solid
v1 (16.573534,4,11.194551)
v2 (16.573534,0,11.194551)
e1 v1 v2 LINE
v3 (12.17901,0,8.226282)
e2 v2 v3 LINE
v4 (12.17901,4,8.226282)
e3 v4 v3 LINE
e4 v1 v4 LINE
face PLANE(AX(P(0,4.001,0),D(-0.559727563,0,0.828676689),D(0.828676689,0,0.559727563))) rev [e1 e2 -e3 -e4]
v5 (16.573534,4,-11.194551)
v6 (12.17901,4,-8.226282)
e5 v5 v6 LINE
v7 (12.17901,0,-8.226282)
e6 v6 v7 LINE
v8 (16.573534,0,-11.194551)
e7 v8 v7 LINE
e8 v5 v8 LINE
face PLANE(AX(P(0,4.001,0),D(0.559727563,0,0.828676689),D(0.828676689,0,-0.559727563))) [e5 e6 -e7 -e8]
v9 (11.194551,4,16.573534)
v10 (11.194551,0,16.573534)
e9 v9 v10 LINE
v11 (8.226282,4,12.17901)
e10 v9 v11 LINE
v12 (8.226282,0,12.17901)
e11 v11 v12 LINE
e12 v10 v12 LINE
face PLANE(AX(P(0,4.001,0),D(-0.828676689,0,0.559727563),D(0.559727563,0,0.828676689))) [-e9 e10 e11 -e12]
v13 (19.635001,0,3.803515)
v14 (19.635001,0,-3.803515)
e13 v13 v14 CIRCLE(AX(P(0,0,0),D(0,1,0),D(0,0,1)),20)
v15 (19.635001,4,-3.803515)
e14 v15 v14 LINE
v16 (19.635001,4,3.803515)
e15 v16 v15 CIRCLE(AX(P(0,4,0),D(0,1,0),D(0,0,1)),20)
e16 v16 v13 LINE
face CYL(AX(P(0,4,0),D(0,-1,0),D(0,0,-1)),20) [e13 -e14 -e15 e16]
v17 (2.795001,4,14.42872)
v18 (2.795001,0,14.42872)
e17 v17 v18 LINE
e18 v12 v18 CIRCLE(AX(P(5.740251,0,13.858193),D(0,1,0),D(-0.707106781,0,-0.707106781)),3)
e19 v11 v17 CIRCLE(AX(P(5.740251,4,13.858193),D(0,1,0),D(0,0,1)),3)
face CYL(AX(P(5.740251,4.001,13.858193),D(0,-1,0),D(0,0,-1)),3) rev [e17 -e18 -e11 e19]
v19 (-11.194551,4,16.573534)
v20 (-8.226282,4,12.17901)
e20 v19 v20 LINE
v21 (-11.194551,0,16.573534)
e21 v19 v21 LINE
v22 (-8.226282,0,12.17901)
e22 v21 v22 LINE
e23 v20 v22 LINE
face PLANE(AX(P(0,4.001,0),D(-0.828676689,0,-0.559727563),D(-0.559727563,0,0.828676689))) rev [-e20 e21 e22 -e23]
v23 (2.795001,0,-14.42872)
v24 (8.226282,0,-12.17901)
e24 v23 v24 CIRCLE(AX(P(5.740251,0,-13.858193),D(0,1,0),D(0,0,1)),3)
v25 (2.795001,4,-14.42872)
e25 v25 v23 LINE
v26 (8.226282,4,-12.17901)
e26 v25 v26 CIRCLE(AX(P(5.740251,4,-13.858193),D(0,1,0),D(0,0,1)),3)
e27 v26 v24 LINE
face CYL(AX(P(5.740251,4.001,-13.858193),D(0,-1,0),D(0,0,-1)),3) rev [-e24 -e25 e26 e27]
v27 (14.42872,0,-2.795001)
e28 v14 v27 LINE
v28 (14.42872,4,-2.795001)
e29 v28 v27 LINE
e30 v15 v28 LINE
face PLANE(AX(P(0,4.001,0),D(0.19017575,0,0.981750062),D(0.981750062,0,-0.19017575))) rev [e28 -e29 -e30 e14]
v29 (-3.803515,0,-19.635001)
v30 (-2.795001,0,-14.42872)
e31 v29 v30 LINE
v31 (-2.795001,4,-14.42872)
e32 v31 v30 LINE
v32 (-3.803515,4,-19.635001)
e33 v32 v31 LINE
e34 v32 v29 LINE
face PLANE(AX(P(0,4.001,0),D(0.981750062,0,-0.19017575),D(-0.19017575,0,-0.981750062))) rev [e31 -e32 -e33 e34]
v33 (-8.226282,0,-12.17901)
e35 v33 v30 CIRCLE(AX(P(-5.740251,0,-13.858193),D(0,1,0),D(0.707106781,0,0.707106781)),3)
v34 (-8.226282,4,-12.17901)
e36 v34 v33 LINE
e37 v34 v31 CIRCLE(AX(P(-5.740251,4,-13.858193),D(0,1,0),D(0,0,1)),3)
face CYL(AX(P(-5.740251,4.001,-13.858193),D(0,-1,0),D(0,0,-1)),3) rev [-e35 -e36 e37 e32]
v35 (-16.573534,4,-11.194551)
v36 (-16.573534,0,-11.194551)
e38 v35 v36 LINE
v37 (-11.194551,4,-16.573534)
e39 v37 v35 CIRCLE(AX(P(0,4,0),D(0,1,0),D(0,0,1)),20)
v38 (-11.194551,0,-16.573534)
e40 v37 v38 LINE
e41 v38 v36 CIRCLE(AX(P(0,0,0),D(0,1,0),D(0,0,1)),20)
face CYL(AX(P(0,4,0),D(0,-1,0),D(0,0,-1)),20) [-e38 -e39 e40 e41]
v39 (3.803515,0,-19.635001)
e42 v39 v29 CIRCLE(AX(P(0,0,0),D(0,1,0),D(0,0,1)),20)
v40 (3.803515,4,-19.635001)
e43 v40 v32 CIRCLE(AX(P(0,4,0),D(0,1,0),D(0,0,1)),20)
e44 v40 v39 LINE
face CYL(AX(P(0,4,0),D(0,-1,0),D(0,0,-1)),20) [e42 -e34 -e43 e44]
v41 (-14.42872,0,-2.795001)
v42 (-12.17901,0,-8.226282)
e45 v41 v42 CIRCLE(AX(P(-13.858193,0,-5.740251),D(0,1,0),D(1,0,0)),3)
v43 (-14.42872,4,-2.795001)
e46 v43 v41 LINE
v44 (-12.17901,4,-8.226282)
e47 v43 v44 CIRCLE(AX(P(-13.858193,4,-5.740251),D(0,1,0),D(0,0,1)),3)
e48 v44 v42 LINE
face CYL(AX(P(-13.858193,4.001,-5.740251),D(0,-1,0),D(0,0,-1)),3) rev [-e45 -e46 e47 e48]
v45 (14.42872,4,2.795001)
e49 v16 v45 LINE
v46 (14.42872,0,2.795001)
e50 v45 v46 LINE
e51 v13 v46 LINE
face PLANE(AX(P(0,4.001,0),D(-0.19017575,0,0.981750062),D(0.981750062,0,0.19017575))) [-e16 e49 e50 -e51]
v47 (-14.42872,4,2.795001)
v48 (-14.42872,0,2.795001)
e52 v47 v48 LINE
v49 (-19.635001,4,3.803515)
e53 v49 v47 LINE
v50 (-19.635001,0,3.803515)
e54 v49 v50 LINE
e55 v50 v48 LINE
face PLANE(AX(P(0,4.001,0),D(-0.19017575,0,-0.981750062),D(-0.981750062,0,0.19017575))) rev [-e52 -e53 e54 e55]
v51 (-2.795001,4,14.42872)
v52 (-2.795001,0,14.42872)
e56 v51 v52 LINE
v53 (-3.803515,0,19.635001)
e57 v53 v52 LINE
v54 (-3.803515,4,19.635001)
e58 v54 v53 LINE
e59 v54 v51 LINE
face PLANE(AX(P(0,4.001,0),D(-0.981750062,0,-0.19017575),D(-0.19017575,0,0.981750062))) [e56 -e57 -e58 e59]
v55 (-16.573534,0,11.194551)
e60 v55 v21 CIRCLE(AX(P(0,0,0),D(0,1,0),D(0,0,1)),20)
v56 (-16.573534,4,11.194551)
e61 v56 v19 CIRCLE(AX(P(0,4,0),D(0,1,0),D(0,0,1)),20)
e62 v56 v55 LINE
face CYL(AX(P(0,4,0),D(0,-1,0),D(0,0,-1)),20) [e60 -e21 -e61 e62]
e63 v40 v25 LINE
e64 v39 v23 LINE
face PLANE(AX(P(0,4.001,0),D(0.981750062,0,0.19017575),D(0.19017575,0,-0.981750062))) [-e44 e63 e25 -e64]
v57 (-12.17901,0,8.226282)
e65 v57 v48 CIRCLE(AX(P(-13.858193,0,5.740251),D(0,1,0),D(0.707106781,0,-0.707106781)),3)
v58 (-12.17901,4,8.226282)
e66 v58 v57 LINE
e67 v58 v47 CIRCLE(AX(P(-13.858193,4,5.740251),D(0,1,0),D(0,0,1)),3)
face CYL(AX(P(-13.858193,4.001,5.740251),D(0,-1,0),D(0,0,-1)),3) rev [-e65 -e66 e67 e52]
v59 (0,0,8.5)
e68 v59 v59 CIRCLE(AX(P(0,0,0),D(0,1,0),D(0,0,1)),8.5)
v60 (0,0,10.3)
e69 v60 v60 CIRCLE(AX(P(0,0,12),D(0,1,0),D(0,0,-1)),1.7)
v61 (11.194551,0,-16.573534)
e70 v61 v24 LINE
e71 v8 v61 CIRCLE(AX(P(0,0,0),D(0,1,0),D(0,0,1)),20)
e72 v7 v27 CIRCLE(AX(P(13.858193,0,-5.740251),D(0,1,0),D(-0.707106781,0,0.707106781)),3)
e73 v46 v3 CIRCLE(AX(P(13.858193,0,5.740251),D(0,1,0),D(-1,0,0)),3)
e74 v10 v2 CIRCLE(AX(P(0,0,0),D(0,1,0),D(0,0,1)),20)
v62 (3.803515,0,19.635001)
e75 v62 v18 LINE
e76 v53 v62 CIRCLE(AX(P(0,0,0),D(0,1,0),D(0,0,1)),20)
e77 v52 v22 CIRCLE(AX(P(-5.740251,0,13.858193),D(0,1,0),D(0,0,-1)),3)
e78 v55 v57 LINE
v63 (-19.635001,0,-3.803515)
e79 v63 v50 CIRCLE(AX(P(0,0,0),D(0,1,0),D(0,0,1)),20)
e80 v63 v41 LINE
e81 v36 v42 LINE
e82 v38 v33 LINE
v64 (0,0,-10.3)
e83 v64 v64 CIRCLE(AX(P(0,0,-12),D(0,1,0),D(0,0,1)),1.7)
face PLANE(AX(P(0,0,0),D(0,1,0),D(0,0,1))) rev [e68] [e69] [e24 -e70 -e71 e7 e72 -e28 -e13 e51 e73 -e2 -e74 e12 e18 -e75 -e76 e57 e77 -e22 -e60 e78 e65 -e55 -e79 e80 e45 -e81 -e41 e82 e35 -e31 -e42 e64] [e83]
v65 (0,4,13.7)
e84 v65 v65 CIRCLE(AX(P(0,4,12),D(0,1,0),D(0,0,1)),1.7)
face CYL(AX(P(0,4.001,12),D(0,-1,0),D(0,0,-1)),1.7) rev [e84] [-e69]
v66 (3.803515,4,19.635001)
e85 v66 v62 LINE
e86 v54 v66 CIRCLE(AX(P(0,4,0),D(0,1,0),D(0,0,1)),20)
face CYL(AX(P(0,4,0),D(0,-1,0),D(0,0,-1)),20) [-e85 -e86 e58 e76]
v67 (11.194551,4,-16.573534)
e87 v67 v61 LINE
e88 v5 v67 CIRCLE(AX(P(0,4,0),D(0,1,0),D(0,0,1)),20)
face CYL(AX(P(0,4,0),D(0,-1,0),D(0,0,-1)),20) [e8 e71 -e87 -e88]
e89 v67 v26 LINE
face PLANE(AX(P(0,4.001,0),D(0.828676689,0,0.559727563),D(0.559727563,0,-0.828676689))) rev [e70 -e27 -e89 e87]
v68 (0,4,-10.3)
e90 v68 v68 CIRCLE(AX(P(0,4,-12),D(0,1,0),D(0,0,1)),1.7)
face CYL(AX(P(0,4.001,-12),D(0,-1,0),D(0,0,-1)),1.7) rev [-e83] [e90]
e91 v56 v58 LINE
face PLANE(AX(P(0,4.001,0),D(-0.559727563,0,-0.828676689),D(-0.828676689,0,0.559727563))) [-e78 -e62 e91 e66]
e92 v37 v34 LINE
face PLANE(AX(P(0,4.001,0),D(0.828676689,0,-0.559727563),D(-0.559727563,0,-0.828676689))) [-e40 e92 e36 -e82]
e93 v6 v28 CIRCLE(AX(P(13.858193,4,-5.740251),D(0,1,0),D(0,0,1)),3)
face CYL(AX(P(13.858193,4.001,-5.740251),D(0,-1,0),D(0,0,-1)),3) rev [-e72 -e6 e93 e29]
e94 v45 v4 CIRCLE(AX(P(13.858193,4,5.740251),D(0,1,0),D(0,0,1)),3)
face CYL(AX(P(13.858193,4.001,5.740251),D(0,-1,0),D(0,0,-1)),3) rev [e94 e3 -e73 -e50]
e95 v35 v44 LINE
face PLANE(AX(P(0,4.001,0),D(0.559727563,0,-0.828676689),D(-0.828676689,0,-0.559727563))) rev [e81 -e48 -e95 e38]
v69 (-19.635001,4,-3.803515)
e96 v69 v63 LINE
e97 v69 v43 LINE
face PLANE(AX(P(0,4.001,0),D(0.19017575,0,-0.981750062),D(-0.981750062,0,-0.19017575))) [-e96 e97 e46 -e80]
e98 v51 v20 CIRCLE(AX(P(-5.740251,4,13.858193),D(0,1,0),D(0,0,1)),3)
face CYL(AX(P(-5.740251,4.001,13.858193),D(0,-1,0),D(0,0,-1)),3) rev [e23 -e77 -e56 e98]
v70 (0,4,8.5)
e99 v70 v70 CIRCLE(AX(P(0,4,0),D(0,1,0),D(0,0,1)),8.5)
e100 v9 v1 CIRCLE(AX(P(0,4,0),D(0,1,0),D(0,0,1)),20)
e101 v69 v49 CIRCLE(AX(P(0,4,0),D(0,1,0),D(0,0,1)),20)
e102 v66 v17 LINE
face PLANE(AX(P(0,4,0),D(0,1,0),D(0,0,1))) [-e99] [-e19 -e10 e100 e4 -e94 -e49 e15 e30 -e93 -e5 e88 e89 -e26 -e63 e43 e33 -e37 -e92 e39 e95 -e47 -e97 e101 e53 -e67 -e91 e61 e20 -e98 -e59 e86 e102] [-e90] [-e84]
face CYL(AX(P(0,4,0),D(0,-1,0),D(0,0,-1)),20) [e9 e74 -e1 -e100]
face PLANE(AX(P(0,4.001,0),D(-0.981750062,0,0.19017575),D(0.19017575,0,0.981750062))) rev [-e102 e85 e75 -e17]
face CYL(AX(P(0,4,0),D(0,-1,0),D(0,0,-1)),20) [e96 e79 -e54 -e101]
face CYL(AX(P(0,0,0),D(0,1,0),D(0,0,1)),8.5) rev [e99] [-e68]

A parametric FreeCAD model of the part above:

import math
import FreeCAD as App
import Part
import Sketcher

V = App.Vector

doc = App.newDocument("Part")
params = doc.addObject("Spreadsheet::Sheet", "Params")
for row, (alias, value) in enumerate([
    ("sketch1_diameter", "40 mm"),
    ("pad1_length", "4 mm"),
    ("sketch2_diameter", "8 mm"),
    ("sketch3_diameter", "3.4 mm"),
    ("sketch4_diameter", "3.4 mm"),
    ("sketch5_radius", "20 mm"),
    ("sketch5_radius2", "3 mm"),
    ("pocket4_length", "4 mm"),
    ("sketch6_diameter", "17 mm"),
], start=1):
    params.set(f"A{row}", alias)
    params.set(f"B{row}", "=" + value)
    params.setAlias(f"B{row}", alias)

body = doc.addObject("PartDesign::Body", "Body")

sketch1 = body.newObject("Sketcher::SketchObject", "Sketch")
sketch1.AttachmentSupport = (doc.getObject("XZ_Plane"), [""])
sketch1.MapMode = "FlatFace"
sketch1.addGeometry(Part.Circle(V(0, 0, 0), V(0, 0, 1), 20), False)
sketch1.addConstraint(Sketcher.Constraint("Coincident", 0, 3, -1, 1))
sketch1.addConstraint(Sketcher.Constraint("Diameter", 0, 40.0))
sketch1.setExpression("Constraints[1]", "Params.sketch1_diameter")
pad1 = body.newObject("PartDesign::Pad", "Pad")
pad1.Profile = sketch1
pad1.setExpression("Length", "Params.pad1_length")
pad1.Reversed = True

sketch2 = body.newObject("Sketcher::SketchObject", "Sketch001")
sketch2.AttachmentSupport = (doc.getObject("XZ_Plane"), [""])
sketch2.MapMode = "FlatFace"
sketch2.addGeometry(Part.Circle(V(0, 0, 0), V(0, 0, 1), 4), False)
sketch2.addConstraint(Sketcher.Constraint("Coincident", 0, 3, -1, 1))
sketch2.addConstraint(Sketcher.Constraint("Diameter", 0, 8.0))
sketch2.setExpression("Constraints[1]", "Params.sketch2_diameter")
pocket1 = body.newObject("PartDesign::Pocket", "Pocket")
pocket1.Profile = sketch2
pocket1.Type = "UpToFirst"

sketch3 = body.newObject("Sketcher::SketchObject", "Sketch002")
sketch3.AttachmentSupport = (doc.getObject("XZ_Plane"), [""])
sketch3.MapMode = "FlatFace"
sketch3.addGeometry(Part.Circle(V(0, -12, 0), V(0, 0, 1), 1.7), False)
sketch3.addConstraint(Sketcher.Constraint("PointOnObject", 0, 3, -2))
sketch3.addConstraint(Sketcher.Constraint("Diameter", 0, 3.4))
sketch3.addConstraint(Sketcher.Constraint("DistanceY", 0, 3, -1, 1, 12.0))
sketch3.setExpression("Constraints[1]", "Params.sketch3_diameter")
pocket2 = body.newObject("PartDesign::Pocket", "Pocket001")
pocket2.Profile = sketch3
pocket2.Type = "UpToFirst"

sketch4 = body.newObject("Sketcher::SketchObject", "Sketch003")
sketch4.AttachmentSupport = (doc.getObject("XZ_Plane"), [""])
sketch4.MapMode = "FlatFace"
sketch4.addGeometry(Part.Circle(V(0, 12, 0), V(0, 0, 1), 1.7), False)
sketch4.addConstraint(Sketcher.Constraint("PointOnObject", 0, 3, -2))
sketch4.addConstraint(Sketcher.Constraint("Diameter", 0, 3.4))
sketch4.addConstraint(Sketcher.Constraint("DistanceY", -1, 1, 0, 3, 12.0))
sketch4.setExpression("Constraints[1]", "Params.sketch4_diameter")
pocket3 = body.newObject("PartDesign::Pocket", "Pocket002")
pocket3.Profile = sketch4
pocket3.Type = "UpToFirst"

sketch5 = body.newObject("Sketcher::SketchObject", "Sketch004")
sketch5.AttachmentSupport = (doc.getObject("XZ_Plane"), [""])
sketch5.MapMode = "FlatFace"
sketch5.addGeometry(Part.ArcOfCircle(Part.Circle(V(0, 0, 0), V(0, 0, 1), 20), math.radians(-79), math.radians(-56)), False)
sketch5.addGeometry(Part.LineSegment(V(3.8, -19.6, 0), V(2.8, -14.4, 0)), False)
sketch5.addGeometry(Part.ArcOfCircle(Part.Circle(V(5.7, -13.9, 0), V(0, 0, 1), 3), math.radians(34), math.radians(191)), False)
sketch5.addGeometry(Part.LineSegment(V(8.2, -12.2, 0), V(11.2, -16.6, 0)), False)
sketch5.addConstraint(Sketcher.Constraint("Coincident", 0, 1, 1, 1))
sketch5.addConstraint(Sketcher.Constraint("Tangent", 1, 2, 2, 2))
sketch5.addConstraint(Sketcher.Constraint("Tangent", 2, 1, 3, 1))
sketch5.addConstraint(Sketcher.Constraint("Coincident", 3, 2, 0, 2))
sketch5.addConstraint(Sketcher.Constraint("Coincident", 0, 3, -1, 1))
sketch5.addConstraint(Sketcher.Constraint("Equal", 1, 3))
sketch5.addConstraint(Sketcher.Constraint("Radius", 0, 20.0))
sketch5.addConstraint(Sketcher.Constraint("Radius", 2, 3.0))
sketch5.addConstraint(Sketcher.Constraint("DistanceY", 0, 1, -1, 1, 19.635001))
sketch5.addConstraint(Sketcher.Constraint("DistanceX", -1, 1, 1, 2, 2.795001))
sketch5.addConstraint(Sketcher.Constraint("DistanceX", 2, 3, 3, 2, 5.4543))
sketch5.setExpression("Constraints[6]", "Params.sketch5_radius")
sketch5.setExpression("Constraints[7]", "Params.sketch5_radius2")
pocket4 = body.newObject("PartDesign::Pocket", "Pocket003")
pocket4.Profile = sketch5
pocket4.setExpression("Length", "Params.pocket4_length")
doc.recompute()

polarpattern = body.newObject("PartDesign::PolarPattern", "PolarPattern")
polarpattern.Originals = [pocket4]
polarpattern.Axis = (doc.getObject("Y_Axis"), [""])
polarpattern.Angle = 360
polarpattern.Occurrences = 8
body.Tip = polarpattern

sketch6 = body.newObject("Sketcher::SketchObject", "Sketch005")
sketch6.AttachmentSupport = (doc.getObject("XZ_Plane"), [""])
sketch6.MapMode = "FlatFace"
sketch6.AttachmentOffset = App.Placement(V(0, 0, -4), App.Rotation())
sketch6.addGeometry(Part.Circle(V(0, 0, 0), V(0, 0, 1), 8), False)
sketch6.addConstraint(Sketcher.Constraint("Coincident", 0, 3, -1, 1))
sketch6.addConstraint(Sketcher.Constraint("Diameter", 0, 17.0))
sketch6.setExpression("Constraints[1]", "Params.sketch6_diameter")
pocket5 = body.newObject("PartDesign::Pocket", "Pocket004")
pocket5.Profile = sketch6
pocket5.Type = "ThroughAll"
pocket5.Reversed = True

doc.recompute()
